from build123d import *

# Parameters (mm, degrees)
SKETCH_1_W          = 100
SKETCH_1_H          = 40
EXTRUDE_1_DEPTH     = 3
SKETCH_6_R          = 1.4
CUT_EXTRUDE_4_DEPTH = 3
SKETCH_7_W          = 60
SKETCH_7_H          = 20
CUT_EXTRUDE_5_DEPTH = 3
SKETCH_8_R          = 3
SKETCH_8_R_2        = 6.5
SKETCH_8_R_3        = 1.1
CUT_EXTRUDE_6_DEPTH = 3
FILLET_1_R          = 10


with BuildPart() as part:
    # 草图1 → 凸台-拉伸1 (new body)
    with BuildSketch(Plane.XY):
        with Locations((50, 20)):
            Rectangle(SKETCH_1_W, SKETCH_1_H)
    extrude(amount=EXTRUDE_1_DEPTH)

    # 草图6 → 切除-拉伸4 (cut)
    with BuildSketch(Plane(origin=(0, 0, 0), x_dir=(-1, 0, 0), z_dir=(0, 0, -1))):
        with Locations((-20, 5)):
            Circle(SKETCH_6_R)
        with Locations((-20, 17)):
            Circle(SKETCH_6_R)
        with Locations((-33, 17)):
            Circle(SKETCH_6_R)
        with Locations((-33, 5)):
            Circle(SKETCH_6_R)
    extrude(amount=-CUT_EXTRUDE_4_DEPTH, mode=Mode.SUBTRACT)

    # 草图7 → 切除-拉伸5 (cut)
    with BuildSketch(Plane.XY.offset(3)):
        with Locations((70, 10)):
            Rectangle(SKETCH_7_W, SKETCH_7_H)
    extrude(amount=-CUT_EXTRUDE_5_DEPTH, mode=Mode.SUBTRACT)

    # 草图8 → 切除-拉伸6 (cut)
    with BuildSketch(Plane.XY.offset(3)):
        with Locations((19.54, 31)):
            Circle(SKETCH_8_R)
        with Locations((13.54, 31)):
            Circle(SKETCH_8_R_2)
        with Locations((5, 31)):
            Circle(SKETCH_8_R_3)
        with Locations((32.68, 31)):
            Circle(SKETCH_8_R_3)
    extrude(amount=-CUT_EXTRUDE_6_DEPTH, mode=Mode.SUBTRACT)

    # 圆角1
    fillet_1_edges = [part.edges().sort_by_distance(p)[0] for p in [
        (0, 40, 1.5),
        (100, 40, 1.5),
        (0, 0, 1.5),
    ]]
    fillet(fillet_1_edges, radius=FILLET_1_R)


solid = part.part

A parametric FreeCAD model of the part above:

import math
import FreeCAD as App
import Part
import Sketcher


def edges_at(feature, points):
    """Names of the edges that pass closest to the given points."""
    edges = feature.Shape.Edges
    near = lambda p: min(range(len(edges)), key=lambda i: edges[i].distToShape(Part.Vertex(*p))[0])
    return sorted({f"Edge{near(p) + 1}" for p in points})

doc = App.newDocument("Part")
params = doc.addObject("Spreadsheet::Sheet", "Params")
for row, (alias, value) in enumerate([
    ("sketch1_width", "100 mm"),
    ("sketch1_height", "40 mm"),
    ("pad1_length", "3 mm"),
    ("sketch2_diameter", "2.8 mm"),
    ("pocket1_length", "3 mm"),
    ("sketch3_width", "60 mm"),
    ("sketch3_height", "20 mm"),
    ("pocket2_length", "3 mm"),
    ("sketch4_radius", "3 mm"),
    ("sketch4_diameter", "2.2 mm"),
    ("sketch4_radius2", "6.5 mm"),
    ("pocket3_length", "3 mm"),
    ("fillet_radius", "10 mm"),
], start=1):
    params.set(f"A{row}", alias)
    params.set(f"B{row}", "=" + value)
    params.setAlias(f"B{row}", alias)

body = doc.addObject("PartDesign::Body", "Body")

# Sketch on XY plane
sketch1 = body.newObject("Sketcher::SketchObject", "Sketch")
sketch1.AttachmentSupport = (doc.getObject("XY_Plane"), [""])
sketch1.MapMode = "FlatFace"
sketch1.addGeometry([
    Part.LineSegment(App.Vector(0, 40, 0), App.Vector(0, 0, 0)),
    Part.LineSegment(App.Vector(0, 0, 0), App.Vector(100, 0, 0)),
    Part.LineSegment(App.Vector(100, 0, 0), App.Vector(100, 40, 0)),
    Part.LineSegment(App.Vector(100, 40, 0), App.Vector(0, 40, 0)),
], False)
sketch1.addConstraint([
    Sketcher.Constraint("Coincident", 0, 2, 1, 1),
    Sketcher.Constraint("Coincident", 1, 2, 2, 1),
    Sketcher.Constraint("Coincident", 2, 2, 3, 1),
    Sketcher.Constraint("Coincident", 3, 2, 0, 1),
    Sketcher.Constraint("Vertical", 0),
    Sketcher.Constraint("Horizontal", 1),
    Sketcher.Constraint("Vertical", 2),
    Sketcher.Constraint("Horizontal", 3),
    Sketcher.Constraint("Coincident", 0, 2, -1, 1),
    Sketcher.Constraint("DistanceX", 1, 1, 1, 2, 100.0),
    Sketcher.Constraint("DistanceY", 0, 2, 0, 1, 40.0),
])
sketch1.setExpression("Constraints[9]", "Params.sketch1_width")
sketch1.setExpression("Constraints[10]", "Params.sketch1_height")
pad1 = body.newObject("PartDesign::Pad", "Pad")
pad1.Profile = sketch1
pad1.setExpression("Length", "Params.pad1_length")

# Sketch on XY plane
sketch2 = body.newObject("Sketcher::SketchObject", "Sketch001")
sketch2.AttachmentSupport = (doc.getObject("XY_Plane"), [""])
sketch2.MapMode = "FlatFace"
sketch2.addGeometry([
    Part.Circle(App.Vector(20, 5, 0), App.Vector(0, 0, 1), 1.4),
    Part.Circle(App.Vector(20, 17, 0), App.Vector(0, 0, 1), 1.4),
    Part.Circle(App.Vector(33, 17, 0), App.Vector(0, 0, 1), 1.4),
    Part.Circle(App.Vector(33, 5, 0), App.Vector(0, 0, 1), 1.4),
], False)
sketch2.addConstraint([
    Sketcher.Constraint("Equal", 0, 1),
    Sketcher.Constraint("Equal", 1, 2),
    Sketcher.Constraint("Equal", 2, 3),
    Sketcher.Constraint("Horizontal", 1, 3, 2, 3),
    Sketcher.Constraint("Horizontal", 0, 3, 3, 3),
    Sketcher.Constraint("Vertical", 0, 3, 1, 3),
    Sketcher.Constraint("Vertical", 2, 3, 3, 3),
    Sketcher.Constraint("Diameter", 0, 2.8),
    Sketcher.Constraint("DistanceX", -1, 1, 0, 3, 20.0),
    Sketcher.Constraint("DistanceY", -1, 1, 0, 3, 5.0),
    Sketcher.Constraint("DistanceY", -1, 1, 1, 3, 17.0),
    Sketcher.Constraint("DistanceX", -1, 1, 2, 3, 33.0),
])
sketch2.setExpression("Constraints[7]", "Params.sketch2_diameter")
pocket1 = body.newObject("PartDesign::Pocket", "Pocket")
pocket1.Profile = sketch2
pocket1.setExpression("Length", "Params.pocket1_length")
pocket1.Reversed = True

# Sketch on XY plane
sketch3 = body.newObject("Sketcher::SketchObject", "Sketch002")
sketch3.AttachmentSupport = (doc.getObject("XY_Plane"), [""])
sketch3.MapMode = "FlatFace"
sketch3.AttachmentOffset = App.Placement(App.Vector(0, 0, 3), App.Rotation())
sketch3.addGeometry([
    Part.LineSegment(App.Vector(40, 20, 0), App.Vector(40, 0, 0)),
    Part.LineSegment(App.Vector(40, 0, 0), App.Vector(100, 0, 0)),
    Part.LineSegment(App.Vector(100, 0, 0), App.Vector(100, 20, 0)),
    Part.LineSegment(App.Vector(100, 20, 0), App.Vector(40, 20, 0)),
], False)
sketch3.addConstraint([
    Sketcher.Constraint("Coincident", 0, 2, 1, 1),
    Sketcher.Constraint("Coincident", 1, 2, 2, 1),
    Sketcher.Constraint("Coincident", 2, 2, 3, 1),
    Sketcher.Constraint("Coincident", 3, 2, 0, 1),
    Sketcher.Constraint("Vertical", 0),
    Sketcher.Constraint("Horizontal", 1),
    Sketcher.Constraint("Vertical", 2),
    Sketcher.Constraint("Horizontal", 3),
    Sketcher.Constraint("PointOnObject", 0, 2, -1),
    Sketcher.Constraint("DistanceX", 1, 1, 1, 2, 60.0),
    Sketcher.Constraint("DistanceY", 0, 2, 0, 1, 20.0),
    Sketcher.Constraint("DistanceX", -1, 1, 0, 2, 40.0),
])
sketch3.setExpression("Constraints[9]", "Params.sketch3_width")
sketch3.setExpression("Constraints[10]", "Params.sketch3_height")
pocket2 = body.newObject("PartDesign::Pocket", "Pocket001")
pocket2.Profile = sketch3
pocket2.setExpression("Length", "Params.pocket2_length")

# Sketch on XY plane
sketch4 = body.newObject("Sketcher::SketchObject", "Sketch003")
sketch4.AttachmentSupport = (doc.getObject("XY_Plane"), [""])
sketch4.MapMode = "FlatFace"
sketch4.AttachmentOffset = App.Placement(App.Vector(0, 0, 3), App.Rotation())
sketch4.addGeometry([
    Part.ArcOfCircle(Part.Circle(App.Vector(13.5, 31, 0), App.Vector(0, 0, 1), 6.5), math.radians(27), math.radians(333)),
    Part.ArcOfCircle(Part.Circle(App.Vector(19.5, 31, 0), App.Vector(0, 0, 1), 3), math.radians(-94), math.radians(94)),
    Part.Circle(App.Vector(5, 31, 0), App.Vector(0, 0, 1), 1.1),
    Part.Circle(App.Vector(32.7, 31, 0), App.Vector(0, 0, 1), 1.1),
], False)
sketch4.addConstraint([
    Sketcher.Constraint("Coincident", 0, 1, 1, 2),
    Sketcher.Constraint("Coincident", 1, 1, 0, 2),
    Sketcher.Constraint("Equal", 2, 3),
    Sketcher.Constraint("Horizontal", 0, 3, 1, 3),
    Sketcher.Constraint("Horizontal", 1, 3, 2, 3),
    Sketcher.Constraint("Horizontal", 2, 3, 3, 3),
    Sketcher.Constraint("Radius", 1, 3.0),
    Sketcher.Constraint("Diameter", 2, 2.2),
    Sketcher.Constraint("Radius", 0, 6.5),
    Sketcher.Constraint("DistanceY", -1, 1, 0, 3, 31.0),
    Sketcher.Constraint("DistanceX", -1, 1, 2, 3, 5.0),
    Sketcher.Constraint("DistanceX", 0, 3, 1, 3, 6.0),
    Sketcher.Constraint("DistanceX", -1, 1, 0, 3, 13.54),
    Sketcher.Constraint("DistanceX", -1, 1, 3, 3, 32.68),
])
sketch4.setExpression("Constraints[6]", "Params.sketch4_radius")
sketch4.setExpression("Constraints[7]", "Params.sketch4_diameter")
sketch4.setExpression("Constraints[8]", "Params.sketch4_radius2")
pocket3 = body.newObject("PartDesign::Pocket", "Pocket002")
pocket3.Profile = sketch4
pocket3.setExpression("Length", "Params.pocket3_length")
doc.recompute()

fillet = body.newObject("PartDesign::Fillet", "Fillet")
fillet.Base = (pocket3, edges_at(pocket3, [(0, 40, 1.5), (100, 40, 1.5), (0, 0, 1.5)]))
fillet.setExpression("Radius", "Params.fillet_radius")

doc.recompute()
